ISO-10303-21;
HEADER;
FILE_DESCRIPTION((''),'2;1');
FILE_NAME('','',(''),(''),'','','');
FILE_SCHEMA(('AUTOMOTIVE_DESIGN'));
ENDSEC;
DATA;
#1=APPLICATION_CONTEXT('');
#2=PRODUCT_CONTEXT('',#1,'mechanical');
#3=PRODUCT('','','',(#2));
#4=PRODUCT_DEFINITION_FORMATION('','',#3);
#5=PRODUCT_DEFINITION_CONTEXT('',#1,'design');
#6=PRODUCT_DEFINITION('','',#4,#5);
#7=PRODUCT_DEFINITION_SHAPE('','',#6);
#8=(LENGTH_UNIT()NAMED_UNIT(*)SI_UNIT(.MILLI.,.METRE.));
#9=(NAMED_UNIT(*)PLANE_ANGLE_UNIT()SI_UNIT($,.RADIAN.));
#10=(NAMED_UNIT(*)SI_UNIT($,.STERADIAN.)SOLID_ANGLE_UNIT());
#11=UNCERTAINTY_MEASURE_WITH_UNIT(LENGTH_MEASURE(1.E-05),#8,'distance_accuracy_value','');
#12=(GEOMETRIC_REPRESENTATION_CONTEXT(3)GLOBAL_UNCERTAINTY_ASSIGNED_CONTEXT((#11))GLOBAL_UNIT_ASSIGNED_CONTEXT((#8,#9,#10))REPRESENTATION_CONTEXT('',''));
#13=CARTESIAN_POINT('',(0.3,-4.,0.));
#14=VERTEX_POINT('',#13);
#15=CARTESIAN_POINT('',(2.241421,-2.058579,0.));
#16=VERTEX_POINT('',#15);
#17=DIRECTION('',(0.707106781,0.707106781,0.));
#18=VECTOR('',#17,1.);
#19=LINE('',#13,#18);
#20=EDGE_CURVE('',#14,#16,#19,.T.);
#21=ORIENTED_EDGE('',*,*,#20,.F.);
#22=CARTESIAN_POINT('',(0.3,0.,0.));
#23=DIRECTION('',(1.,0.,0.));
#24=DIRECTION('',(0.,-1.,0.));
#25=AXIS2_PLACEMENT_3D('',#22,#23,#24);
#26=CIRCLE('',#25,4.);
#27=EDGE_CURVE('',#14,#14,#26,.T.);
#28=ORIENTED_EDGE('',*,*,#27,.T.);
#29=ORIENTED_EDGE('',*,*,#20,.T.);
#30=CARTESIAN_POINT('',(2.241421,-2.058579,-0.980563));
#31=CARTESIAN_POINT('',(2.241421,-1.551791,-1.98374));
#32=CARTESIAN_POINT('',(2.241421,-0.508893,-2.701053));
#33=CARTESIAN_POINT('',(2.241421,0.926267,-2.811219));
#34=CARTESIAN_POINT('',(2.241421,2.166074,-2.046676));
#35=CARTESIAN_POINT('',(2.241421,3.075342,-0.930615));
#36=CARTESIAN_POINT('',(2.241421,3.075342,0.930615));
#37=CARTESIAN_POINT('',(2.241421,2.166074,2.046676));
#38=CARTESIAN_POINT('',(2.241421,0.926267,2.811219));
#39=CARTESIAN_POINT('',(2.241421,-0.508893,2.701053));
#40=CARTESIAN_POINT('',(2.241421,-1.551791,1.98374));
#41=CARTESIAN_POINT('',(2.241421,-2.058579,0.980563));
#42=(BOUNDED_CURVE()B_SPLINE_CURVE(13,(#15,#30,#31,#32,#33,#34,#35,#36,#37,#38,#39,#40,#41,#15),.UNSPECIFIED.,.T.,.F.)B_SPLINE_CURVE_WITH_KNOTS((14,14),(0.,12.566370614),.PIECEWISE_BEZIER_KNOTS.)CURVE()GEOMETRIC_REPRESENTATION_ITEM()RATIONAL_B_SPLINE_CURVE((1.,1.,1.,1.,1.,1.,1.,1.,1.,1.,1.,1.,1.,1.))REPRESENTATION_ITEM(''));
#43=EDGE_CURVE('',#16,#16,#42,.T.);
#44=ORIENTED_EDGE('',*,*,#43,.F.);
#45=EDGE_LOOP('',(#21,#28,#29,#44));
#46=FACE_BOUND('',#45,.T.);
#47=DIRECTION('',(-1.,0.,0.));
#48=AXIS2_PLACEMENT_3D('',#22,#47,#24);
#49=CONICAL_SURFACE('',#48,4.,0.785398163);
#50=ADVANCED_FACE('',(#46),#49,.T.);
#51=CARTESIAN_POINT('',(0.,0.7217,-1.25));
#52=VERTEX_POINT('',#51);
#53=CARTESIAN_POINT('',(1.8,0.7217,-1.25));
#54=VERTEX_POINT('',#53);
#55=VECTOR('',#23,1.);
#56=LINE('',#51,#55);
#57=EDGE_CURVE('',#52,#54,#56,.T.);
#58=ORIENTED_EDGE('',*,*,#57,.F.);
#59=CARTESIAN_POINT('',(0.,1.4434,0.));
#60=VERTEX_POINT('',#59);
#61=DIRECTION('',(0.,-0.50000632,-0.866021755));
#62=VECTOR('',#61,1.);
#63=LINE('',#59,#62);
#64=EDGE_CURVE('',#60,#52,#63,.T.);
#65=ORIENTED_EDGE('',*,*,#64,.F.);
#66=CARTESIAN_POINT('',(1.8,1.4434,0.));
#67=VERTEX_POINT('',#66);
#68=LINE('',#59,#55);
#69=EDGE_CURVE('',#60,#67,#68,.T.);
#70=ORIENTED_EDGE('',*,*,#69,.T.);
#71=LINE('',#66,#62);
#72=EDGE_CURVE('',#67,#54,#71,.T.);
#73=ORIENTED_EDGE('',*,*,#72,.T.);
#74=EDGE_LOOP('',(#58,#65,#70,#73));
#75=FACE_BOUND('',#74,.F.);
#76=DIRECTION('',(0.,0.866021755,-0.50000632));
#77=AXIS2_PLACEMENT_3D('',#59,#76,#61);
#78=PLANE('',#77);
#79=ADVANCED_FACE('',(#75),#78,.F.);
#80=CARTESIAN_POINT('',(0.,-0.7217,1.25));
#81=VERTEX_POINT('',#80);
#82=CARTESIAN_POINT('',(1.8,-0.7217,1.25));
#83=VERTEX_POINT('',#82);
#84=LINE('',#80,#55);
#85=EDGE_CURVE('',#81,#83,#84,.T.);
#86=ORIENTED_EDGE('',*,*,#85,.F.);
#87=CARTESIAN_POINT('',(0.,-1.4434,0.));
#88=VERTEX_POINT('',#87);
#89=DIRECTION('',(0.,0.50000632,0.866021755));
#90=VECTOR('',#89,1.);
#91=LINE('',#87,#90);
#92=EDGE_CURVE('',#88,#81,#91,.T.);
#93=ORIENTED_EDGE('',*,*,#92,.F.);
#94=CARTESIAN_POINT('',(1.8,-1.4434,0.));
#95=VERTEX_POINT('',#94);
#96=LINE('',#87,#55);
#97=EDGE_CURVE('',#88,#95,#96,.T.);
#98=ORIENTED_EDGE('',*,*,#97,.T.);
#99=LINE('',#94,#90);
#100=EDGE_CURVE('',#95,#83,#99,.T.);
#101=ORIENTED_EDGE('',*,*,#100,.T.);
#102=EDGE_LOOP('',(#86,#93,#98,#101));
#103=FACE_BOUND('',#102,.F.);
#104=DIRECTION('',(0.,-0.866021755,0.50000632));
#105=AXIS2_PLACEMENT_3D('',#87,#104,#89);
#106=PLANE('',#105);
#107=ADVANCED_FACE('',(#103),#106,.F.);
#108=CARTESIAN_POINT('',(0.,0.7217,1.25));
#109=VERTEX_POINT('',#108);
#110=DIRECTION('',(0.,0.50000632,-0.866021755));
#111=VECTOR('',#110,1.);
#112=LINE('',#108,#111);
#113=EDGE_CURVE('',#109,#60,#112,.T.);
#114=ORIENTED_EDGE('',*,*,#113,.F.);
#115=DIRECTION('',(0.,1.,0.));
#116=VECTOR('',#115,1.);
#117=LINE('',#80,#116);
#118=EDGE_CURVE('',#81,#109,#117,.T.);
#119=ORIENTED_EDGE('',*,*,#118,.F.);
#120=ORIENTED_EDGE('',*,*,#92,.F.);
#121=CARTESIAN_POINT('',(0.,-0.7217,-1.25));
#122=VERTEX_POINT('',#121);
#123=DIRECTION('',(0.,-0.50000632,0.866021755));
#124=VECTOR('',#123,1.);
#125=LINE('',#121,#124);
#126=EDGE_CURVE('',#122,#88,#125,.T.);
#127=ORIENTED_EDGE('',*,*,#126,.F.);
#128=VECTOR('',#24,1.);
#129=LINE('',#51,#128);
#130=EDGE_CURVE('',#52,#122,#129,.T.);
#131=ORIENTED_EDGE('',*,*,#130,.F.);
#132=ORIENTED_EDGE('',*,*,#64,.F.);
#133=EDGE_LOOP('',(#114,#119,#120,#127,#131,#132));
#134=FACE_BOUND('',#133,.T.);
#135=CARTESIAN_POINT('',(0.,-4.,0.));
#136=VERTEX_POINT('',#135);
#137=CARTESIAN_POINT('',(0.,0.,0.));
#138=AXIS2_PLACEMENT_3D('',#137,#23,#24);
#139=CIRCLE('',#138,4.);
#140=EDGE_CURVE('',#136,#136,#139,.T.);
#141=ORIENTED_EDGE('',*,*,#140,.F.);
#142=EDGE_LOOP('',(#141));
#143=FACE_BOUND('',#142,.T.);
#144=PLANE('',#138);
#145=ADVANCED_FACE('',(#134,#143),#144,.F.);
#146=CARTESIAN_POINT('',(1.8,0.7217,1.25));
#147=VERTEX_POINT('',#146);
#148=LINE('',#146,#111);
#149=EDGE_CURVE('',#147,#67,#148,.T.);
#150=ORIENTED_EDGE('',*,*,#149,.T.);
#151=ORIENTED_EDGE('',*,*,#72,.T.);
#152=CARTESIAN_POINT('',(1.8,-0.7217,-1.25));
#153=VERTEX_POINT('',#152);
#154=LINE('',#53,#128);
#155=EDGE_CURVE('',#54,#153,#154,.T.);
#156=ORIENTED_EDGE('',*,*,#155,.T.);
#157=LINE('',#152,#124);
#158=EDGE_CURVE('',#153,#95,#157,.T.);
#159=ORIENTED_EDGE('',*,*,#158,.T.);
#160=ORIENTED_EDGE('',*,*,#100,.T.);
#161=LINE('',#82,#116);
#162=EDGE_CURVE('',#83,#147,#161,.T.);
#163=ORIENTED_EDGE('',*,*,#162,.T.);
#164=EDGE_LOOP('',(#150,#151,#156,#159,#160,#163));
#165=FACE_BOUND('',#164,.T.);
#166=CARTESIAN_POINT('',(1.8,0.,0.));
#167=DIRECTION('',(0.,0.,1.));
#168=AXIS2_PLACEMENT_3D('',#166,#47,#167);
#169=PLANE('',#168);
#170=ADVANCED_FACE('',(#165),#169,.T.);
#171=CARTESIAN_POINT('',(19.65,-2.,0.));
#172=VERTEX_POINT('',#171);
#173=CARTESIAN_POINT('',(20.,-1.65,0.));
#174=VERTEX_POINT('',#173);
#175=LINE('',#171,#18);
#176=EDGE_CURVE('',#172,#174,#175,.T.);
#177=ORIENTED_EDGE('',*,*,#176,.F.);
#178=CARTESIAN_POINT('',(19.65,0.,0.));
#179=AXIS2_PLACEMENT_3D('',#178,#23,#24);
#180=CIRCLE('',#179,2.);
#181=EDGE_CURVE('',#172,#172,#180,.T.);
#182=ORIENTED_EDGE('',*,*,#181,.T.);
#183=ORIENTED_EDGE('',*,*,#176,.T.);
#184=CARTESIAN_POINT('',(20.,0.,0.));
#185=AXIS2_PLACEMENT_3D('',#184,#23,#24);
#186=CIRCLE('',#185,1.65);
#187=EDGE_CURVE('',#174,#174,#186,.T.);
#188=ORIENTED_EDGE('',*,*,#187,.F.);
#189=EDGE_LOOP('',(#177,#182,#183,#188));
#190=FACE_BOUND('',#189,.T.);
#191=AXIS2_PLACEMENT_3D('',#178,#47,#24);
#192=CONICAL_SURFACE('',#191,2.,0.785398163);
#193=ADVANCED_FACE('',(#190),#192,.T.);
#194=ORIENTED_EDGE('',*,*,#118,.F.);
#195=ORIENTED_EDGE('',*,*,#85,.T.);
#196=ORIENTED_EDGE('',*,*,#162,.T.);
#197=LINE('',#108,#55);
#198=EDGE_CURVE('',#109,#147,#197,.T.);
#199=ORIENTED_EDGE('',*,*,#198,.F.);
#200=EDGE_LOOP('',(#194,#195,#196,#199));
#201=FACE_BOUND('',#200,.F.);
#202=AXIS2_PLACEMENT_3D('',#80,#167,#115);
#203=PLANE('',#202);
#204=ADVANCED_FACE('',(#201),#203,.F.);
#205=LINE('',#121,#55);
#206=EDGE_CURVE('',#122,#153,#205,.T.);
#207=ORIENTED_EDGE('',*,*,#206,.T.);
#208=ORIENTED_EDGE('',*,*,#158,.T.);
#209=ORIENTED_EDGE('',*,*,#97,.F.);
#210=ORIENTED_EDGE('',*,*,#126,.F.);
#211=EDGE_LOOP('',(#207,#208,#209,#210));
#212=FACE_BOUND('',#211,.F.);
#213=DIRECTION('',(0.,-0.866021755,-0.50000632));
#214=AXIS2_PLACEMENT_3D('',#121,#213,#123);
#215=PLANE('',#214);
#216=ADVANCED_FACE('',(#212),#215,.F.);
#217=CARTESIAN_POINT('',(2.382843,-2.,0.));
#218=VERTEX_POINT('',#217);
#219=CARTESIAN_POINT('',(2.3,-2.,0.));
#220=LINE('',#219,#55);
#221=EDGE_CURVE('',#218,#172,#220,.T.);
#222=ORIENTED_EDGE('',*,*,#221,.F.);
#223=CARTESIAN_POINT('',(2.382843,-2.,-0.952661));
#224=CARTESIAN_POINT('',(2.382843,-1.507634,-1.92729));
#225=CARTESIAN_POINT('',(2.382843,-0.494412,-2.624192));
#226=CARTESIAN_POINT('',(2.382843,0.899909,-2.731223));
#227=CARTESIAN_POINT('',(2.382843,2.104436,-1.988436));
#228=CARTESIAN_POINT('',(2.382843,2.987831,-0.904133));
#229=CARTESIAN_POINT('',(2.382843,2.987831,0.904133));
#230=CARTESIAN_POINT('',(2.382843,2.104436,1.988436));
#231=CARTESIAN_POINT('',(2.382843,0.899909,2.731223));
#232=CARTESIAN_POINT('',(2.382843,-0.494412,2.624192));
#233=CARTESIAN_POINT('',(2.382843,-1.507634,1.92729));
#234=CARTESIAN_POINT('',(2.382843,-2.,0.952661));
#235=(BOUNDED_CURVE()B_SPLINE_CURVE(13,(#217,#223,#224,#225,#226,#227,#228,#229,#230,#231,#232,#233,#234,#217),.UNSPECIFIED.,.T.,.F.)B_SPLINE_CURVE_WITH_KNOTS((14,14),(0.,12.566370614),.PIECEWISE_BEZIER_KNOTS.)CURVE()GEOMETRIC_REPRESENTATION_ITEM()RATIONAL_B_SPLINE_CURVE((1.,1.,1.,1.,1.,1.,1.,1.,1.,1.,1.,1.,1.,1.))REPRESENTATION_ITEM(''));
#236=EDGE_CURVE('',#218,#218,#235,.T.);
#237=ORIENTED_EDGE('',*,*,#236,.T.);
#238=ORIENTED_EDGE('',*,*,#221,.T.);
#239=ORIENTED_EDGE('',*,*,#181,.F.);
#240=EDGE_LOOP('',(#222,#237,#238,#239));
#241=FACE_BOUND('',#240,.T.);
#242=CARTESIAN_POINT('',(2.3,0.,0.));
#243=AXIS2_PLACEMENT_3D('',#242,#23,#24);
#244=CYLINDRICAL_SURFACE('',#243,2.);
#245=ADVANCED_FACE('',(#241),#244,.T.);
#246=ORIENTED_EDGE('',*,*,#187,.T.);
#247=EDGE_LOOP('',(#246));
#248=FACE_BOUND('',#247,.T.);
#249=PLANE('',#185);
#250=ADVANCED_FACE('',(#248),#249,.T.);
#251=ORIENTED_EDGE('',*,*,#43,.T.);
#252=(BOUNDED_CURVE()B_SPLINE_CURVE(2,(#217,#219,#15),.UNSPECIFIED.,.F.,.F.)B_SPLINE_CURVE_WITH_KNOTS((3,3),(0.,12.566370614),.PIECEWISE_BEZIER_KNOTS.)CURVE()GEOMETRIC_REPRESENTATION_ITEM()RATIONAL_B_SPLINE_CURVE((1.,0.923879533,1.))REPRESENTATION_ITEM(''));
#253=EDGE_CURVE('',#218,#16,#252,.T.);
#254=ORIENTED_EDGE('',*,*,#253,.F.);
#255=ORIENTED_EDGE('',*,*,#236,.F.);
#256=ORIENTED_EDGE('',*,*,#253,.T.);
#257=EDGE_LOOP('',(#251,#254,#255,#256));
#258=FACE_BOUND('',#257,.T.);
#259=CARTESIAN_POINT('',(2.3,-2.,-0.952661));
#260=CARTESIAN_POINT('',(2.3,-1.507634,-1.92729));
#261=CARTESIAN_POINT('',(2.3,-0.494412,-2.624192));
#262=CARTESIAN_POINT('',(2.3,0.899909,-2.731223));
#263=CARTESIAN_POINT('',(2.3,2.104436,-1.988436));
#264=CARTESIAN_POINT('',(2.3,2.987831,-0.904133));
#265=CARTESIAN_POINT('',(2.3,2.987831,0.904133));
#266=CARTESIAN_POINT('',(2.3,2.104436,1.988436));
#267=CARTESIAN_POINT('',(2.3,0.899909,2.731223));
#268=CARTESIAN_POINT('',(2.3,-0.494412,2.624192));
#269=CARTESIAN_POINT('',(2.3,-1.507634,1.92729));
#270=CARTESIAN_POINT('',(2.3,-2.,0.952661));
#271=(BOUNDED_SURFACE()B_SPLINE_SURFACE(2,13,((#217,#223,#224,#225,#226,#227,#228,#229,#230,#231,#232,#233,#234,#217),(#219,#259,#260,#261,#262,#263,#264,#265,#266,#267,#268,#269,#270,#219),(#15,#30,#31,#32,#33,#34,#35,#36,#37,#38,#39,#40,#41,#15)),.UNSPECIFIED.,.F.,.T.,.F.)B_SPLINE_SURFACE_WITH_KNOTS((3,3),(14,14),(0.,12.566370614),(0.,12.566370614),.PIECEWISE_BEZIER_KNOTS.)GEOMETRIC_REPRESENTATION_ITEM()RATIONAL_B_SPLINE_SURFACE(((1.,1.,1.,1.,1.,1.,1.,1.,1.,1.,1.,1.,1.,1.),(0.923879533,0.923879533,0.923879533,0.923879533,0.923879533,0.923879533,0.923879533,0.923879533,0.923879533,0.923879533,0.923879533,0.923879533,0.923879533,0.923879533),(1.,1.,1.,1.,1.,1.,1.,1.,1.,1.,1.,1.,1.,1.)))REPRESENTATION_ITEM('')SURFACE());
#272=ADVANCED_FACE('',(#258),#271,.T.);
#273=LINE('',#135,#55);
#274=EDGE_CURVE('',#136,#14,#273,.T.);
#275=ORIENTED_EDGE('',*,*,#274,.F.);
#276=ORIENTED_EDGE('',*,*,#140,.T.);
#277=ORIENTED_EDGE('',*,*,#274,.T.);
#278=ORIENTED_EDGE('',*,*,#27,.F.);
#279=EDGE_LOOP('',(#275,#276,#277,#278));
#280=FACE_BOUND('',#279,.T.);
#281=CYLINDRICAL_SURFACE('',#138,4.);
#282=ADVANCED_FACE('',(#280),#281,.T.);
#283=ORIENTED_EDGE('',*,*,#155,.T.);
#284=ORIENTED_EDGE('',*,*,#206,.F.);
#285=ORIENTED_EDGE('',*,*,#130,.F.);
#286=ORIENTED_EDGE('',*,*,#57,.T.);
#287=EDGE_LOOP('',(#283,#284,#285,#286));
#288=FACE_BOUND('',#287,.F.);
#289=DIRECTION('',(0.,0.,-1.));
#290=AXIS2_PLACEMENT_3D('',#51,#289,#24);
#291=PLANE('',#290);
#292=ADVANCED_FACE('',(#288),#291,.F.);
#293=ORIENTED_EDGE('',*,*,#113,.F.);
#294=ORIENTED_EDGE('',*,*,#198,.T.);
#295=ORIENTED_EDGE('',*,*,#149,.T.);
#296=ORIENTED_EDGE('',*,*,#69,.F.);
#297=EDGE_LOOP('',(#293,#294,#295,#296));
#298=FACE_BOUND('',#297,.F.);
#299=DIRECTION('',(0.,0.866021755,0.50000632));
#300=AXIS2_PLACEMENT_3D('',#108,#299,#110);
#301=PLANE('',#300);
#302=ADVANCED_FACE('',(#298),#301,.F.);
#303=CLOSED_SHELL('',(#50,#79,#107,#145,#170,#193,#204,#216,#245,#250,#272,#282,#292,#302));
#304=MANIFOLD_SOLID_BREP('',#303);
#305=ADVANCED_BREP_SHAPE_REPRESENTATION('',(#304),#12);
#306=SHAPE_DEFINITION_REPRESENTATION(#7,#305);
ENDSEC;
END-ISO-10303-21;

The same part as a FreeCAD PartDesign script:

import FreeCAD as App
import Part
import Sketcher
from FreeCAD import Vector
Q = App.Units.Quantity


def edges_at(feature, points):
    """Names of the edges that pass closest to the given points."""
    edges = feature.Shape.Edges
    near = lambda p: min(range(len(edges)), key=lambda i: edges[i].distToShape(Part.Vertex(*p))[0])
    return sorted({f"Edge{near(p) + 1}" for p in points})

doc = App.newDocument("Part")
body = doc.addObject("PartDesign::Body", "Body")

# Sketch on XY plane
sketch1 = body.newObject("Sketcher::SketchObject", "Sketch")
sketch1.AttachmentSupport = (doc.getObject("XY_Plane"), [""])
sketch1.MapMode = "FlatFace"
sketch1.addGeometry(Part.LineSegment(Vector(2.3, -2, 0), Vector(20, -2, 0)), False)
sketch1.addGeometry(Part.LineSegment(Vector(20, -2, 0), Vector(20, 0, 0)), False)
sketch1.addGeometry(Part.LineSegment(Vector(20, 0, 0), Vector(0, 0, 0)), False)
sketch1.addGeometry(Part.LineSegment(Vector(0, 0, 0), Vector(0, -4, 0)), False)
sketch1.addGeometry(Part.LineSegment(Vector(0, -4, 0), Vector(0.3, -4, 0)), False)
sketch1.addGeometry(Part.LineSegment(Vector(0.3, -4, 0), Vector(2.3, -2, 0)), False)
sketch1.addConstraint(Sketcher.Constraint("Coincident", 0, 2, 1, 1))
sketch1.addConstraint(Sketcher.Constraint("Coincident", 1, 2, 2, 1))
sketch1.addConstraint(Sketcher.Constraint("Coincident", 2, 2, 3, 1))
sketch1.addConstraint(Sketcher.Constraint("Coincident", 3, 2, 4, 1))
sketch1.addConstraint(Sketcher.Constraint("Coincident", 4, 2, 5, 1))
sketch1.addConstraint(Sketcher.Constraint("Coincident", 5, 2, 0, 1))
sketch1.addConstraint(Sketcher.Constraint("Horizontal", 0))
sketch1.addConstraint(Sketcher.Constraint("Vertical", 1))
sketch1.addConstraint(Sketcher.Constraint("Horizontal", 2))
sketch1.addConstraint(Sketcher.Constraint("Vertical", 3))
sketch1.addConstraint(Sketcher.Constraint("Horizontal", 4))
sketch1.addConstraint(Sketcher.Constraint("Coincident", 2, 2, -1, 1))
sketch1.addConstraint(Sketcher.Constraint("DistanceX", 2, 2, 2, 1, Q("20 mm")))
sketch1.addConstraint(Sketcher.Constraint("DistanceY", 1, 1, 1, 2, Q("2 mm")))
sketch1.addConstraint(Sketcher.Constraint("DistanceY", 3, 2, 3, 1, Q("4 mm")))
sketch1.addConstraint(Sketcher.Constraint("Angle", 5, Q("45 deg")))
sketch1.addConstraint(Sketcher.Constraint("DistanceX", 4, 1, 4, 2, Q("0.3 mm")))
revolution = body.newObject("PartDesign::Revolution", "Revolution")
revolution.Profile = sketch1
revolution.ReferenceAxis = (sketch1, ["H_Axis"])
revolution.Angle = 360

# Sketch on YZ plane
sketch2 = body.newObject("Sketcher::SketchObject", "Sketch001")
sketch2.AttachmentSupport = (doc.getObject("YZ_Plane"), [""])
sketch2.MapMode = "FlatFace"
sketch2.addGeometry(Part.LineSegment(Vector(1.4, 0, 0), Vector(0.7, -1.2, 0)), False)
sketch2.addGeometry(Part.LineSegment(Vector(0.7, -1.2, 0), Vector(-0.7, -1.2, 0)), False)
sketch2.addGeometry(Part.LineSegment(Vector(-0.7, -1.2, 0), Vector(-1.4, 0, 0)), False)
sketch2.addGeometry(Part.LineSegment(Vector(-1.4, 0, 0), Vector(-0.7, 1.2, 0)), False)
sketch2.addGeometry(Part.LineSegment(Vector(-0.7, 1.2, 0), Vector(0.7, 1.2, 0)), False)
sketch2.addGeometry(Part.LineSegment(Vector(0.7, 1.2, 0), Vector(1.4, 0, 0)), False)
sketch2.addConstraint(Sketcher.Constraint("Coincident", 0, 2, 1, 1))
sketch2.addConstraint(Sketcher.Constraint("Coincident", 1, 2, 2, 1))
sketch2.addConstraint(Sketcher.Constraint("Coincident", 2, 2, 3, 1))
sketch2.addConstraint(Sketcher.Constraint("Coincident", 3, 2, 4, 1))
sketch2.addConstraint(Sketcher.Constraint("Coincident", 4, 2, 5, 1))
sketch2.addConstraint(Sketcher.Constraint("Coincident", 5, 2, 0, 1))
sketch2.addConstraint(Sketcher.Constraint("Horizontal", 1))
sketch2.addConstraint(Sketcher.Constraint("Horizontal", 4))
sketch2.addConstraint(Sketcher.Constraint("Symmetric", 0, 2, 3, 2, -1, 1))
sketch2.addConstraint(Sketcher.Constraint("Symmetric", 2, 2, 5, 2, -1, 1))
sketch2.addConstraint(Sketcher.Constraint("PointOnObject", 2, 2, -1))
sketch2.addConstraint(Sketcher.Constraint("Parallel", 2, 5))
sketch2.addConstraint(Sketcher.Constraint("Vertical", 1, 2, 3, 2))
sketch2.addConstraint(Sketcher.Constraint("Angle", 0, Q("-120.0004 deg")))
sketch2.addConstraint(Sketcher.Constraint("DistanceY", 1, 2, 3, 2, Q("2.5 mm")))
sketch2.addConstraint(Sketcher.Constraint("DistanceX", 1, 2, 1, 1, Q("1.4434 mm")))
pocket1 = body.newObject("PartDesign::Pocket", "Pocket")
pocket1.Profile = sketch2
pocket1.Length = 1.8
pocket1.Reversed = True
doc.recompute()

fillet = body.newObject("PartDesign::Fillet", "Fillet")
fillet.Base = (pocket1, edges_at(pocket1, [(2.3, 2, 0)]))
fillet.Radius = 0.2
doc.recompute()

chamfer = body.newObject("PartDesign::Chamfer", "Chamfer")
chamfer.Base = (fillet, edges_at(fillet, [(20, 2, 0)]))
chamfer.Size = 0.35

doc.recompute()
